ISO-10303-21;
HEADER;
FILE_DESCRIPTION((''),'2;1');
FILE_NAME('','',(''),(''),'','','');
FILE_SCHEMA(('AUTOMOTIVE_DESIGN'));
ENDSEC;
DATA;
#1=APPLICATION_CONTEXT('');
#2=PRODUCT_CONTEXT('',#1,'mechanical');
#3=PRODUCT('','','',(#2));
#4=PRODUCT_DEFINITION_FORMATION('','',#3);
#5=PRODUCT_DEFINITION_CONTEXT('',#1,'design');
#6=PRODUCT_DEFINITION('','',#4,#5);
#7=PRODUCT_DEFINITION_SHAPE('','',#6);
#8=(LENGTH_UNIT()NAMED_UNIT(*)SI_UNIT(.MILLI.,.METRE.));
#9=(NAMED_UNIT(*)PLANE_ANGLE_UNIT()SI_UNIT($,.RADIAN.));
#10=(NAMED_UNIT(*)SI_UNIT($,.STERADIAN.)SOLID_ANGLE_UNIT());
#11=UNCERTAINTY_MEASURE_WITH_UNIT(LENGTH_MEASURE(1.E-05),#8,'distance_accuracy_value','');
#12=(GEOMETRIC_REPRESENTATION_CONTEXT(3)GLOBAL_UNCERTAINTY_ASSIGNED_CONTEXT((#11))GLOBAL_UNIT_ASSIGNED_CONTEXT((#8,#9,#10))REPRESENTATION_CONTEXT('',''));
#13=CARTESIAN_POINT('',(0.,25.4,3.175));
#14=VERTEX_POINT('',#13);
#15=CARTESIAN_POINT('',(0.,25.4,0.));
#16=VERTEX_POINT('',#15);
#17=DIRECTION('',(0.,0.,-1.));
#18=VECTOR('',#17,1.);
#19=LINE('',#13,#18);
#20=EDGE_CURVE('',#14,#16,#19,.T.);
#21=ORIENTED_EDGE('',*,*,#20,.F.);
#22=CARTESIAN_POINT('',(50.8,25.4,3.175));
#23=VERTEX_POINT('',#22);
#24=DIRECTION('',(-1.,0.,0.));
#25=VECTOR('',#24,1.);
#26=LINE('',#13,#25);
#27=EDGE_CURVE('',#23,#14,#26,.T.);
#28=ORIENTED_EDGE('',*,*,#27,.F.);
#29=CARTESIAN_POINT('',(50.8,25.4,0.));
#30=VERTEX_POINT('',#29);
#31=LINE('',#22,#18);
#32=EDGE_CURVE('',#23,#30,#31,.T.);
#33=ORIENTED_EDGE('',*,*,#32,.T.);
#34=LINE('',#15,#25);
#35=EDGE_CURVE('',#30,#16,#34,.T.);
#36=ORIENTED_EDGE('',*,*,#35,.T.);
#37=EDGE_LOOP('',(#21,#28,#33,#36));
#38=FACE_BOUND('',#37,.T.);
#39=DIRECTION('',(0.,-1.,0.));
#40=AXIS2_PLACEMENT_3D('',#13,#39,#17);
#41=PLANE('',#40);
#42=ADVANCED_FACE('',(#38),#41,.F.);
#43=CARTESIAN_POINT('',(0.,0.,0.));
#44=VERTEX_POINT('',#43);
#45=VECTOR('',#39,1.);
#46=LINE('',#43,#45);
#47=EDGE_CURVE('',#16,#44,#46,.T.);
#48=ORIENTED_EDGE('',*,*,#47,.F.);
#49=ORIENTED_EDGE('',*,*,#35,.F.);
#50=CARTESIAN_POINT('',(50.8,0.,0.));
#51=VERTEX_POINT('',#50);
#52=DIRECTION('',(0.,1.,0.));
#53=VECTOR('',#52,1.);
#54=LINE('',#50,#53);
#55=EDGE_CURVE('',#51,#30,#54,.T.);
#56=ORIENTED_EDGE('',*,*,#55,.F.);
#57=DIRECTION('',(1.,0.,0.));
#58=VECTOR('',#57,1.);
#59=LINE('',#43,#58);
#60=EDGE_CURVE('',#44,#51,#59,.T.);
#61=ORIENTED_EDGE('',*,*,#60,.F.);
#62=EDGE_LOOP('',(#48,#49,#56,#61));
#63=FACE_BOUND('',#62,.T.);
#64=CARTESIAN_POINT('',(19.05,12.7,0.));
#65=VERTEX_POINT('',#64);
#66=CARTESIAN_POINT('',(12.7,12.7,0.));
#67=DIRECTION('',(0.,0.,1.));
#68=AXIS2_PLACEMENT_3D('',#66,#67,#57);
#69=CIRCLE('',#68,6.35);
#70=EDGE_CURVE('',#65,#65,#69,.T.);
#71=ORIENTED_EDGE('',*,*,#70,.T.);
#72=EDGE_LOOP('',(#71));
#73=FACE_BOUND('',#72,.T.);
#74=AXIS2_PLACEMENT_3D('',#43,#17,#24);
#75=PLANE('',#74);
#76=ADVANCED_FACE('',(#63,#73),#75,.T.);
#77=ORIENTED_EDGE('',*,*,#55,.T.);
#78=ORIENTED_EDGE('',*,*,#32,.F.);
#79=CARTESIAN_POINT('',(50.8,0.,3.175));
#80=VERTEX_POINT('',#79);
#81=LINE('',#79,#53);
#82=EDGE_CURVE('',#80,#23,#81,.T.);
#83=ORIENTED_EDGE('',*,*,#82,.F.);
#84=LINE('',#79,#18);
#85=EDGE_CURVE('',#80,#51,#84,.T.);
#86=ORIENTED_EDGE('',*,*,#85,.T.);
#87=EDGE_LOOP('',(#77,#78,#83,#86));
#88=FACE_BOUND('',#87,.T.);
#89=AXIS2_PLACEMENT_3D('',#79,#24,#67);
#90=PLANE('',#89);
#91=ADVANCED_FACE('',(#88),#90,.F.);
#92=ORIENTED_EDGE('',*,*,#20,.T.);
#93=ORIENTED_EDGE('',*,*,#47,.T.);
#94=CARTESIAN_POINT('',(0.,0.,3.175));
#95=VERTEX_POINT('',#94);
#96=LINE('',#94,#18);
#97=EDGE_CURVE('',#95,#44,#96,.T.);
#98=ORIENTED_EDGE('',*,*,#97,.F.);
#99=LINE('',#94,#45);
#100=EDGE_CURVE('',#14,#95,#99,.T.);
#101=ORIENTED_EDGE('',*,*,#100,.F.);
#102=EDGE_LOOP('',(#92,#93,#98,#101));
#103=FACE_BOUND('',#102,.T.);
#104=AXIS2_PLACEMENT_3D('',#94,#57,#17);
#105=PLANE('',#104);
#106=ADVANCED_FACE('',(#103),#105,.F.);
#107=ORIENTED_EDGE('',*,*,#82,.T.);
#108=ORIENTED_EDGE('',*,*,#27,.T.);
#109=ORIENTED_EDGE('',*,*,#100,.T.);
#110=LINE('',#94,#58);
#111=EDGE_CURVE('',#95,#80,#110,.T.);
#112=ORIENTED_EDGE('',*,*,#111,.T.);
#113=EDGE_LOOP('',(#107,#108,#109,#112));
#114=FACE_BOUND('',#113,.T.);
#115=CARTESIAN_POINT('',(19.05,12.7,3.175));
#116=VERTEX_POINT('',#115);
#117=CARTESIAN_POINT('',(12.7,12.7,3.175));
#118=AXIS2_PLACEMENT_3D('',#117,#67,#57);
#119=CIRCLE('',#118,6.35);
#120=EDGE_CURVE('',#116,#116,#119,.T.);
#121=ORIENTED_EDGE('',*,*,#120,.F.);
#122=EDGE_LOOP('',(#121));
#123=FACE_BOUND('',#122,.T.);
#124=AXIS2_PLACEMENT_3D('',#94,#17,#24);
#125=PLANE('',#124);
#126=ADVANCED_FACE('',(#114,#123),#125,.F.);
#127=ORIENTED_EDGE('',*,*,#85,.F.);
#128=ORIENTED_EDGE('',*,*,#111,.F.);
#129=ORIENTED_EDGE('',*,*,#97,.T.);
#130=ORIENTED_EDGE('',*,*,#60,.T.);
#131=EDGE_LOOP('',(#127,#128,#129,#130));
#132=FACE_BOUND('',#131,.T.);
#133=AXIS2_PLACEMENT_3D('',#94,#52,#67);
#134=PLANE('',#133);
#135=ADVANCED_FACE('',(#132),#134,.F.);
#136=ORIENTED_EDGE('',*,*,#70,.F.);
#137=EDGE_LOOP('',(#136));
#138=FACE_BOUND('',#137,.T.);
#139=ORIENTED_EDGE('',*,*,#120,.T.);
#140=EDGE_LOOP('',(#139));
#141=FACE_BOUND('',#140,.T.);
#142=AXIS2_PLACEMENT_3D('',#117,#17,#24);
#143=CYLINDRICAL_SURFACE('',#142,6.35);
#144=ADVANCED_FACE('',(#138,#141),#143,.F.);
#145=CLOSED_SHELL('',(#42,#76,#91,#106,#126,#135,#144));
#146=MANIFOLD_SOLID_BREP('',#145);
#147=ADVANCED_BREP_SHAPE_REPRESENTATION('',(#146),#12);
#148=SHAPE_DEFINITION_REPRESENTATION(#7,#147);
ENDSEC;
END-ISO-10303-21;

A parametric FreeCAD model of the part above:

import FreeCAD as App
import Part
import Sketcher

V = App.Vector
Q = App.Units.Quantity


def add_polygon(sketch, points):
    """Adds a closed chain of lines whose ends are joined by coincident constraints."""
    first, n = sketch.GeometryCount, len(points)
    for a, b in zip(points, points[1:] + points[:1]):
        sketch.addGeometry(Part.LineSegment(App.Vector(*a, 0), App.Vector(*b, 0)), False)
    for i in range(n):
        sketch.addConstraint(Sketcher.Constraint("Coincident", first + i, 2, first + (i + 1) % n, 1))

doc = App.newDocument("Part")
params = doc.addObject("Spreadsheet::Sheet", "Params")
for row, (alias, value) in enumerate([
    ("sketch1_diameter", "0.5 in"),
    ("sketch1_width", "2 in"),
    ("sketch1_height", "1 in"),
    ("pad1_length", "0.125 in"),
], start=1):
    params.set(f"A{row}", alias)
    params.set(f"B{row}", "=" + value)
    params.setAlias(f"B{row}", alias)

body = doc.addObject("PartDesign::Body", "Body")

# Sketch on XY plane
sketch1 = body.newObject("Sketcher::SketchObject", "Sketch")
sketch1.AttachmentSupport = (doc.getObject("XY_Plane"), [""])
sketch1.MapMode = "FlatFace"
add_polygon(sketch1, [(0, 25), (0, 0), (51, 0), (51, 25)])  # lines 0-3
sketch1.addGeometry(Part.Circle(V(13, 13, 0), V(0, 0, 1), 6), False)  # 4
sketch1.addConstraint([
    Sketcher.Constraint("Vertical", 0),
    Sketcher.Constraint("Horizontal", 1),
    Sketcher.Constraint("Vertical", 2),
    Sketcher.Constraint("Horizontal", 3),
    Sketcher.Constraint("Coincident", 0, 2, -1, 1),
    Sketcher.Constraint("Diameter", 4, Q("0.5 in")),
    Sketcher.Constraint("DistanceX", 1, 1, 1, 2, Q("2 in")),
    Sketcher.Constraint("DistanceY", 0, 2, 0, 1, Q("1 in")),
    Sketcher.Constraint("DistanceX", -1, 1, 4, 3, Q("0.5 in")),
    Sketcher.Constraint("DistanceY", -1, 1, 4, 3, Q("0.5 in")),
])
sketch1.setExpression("Constraints[9]", "Params.sketch1_diameter")
sketch1.setExpression("Constraints[10]", "Params.sketch1_width")
sketch1.setExpression("Constraints[11]", "Params.sketch1_height")
pad1 = body.newObject("PartDesign::Pad", "Pad")
pad1.Profile = sketch1
pad1.setExpression("Length", "Params.pad1_length")

doc.recompute()
